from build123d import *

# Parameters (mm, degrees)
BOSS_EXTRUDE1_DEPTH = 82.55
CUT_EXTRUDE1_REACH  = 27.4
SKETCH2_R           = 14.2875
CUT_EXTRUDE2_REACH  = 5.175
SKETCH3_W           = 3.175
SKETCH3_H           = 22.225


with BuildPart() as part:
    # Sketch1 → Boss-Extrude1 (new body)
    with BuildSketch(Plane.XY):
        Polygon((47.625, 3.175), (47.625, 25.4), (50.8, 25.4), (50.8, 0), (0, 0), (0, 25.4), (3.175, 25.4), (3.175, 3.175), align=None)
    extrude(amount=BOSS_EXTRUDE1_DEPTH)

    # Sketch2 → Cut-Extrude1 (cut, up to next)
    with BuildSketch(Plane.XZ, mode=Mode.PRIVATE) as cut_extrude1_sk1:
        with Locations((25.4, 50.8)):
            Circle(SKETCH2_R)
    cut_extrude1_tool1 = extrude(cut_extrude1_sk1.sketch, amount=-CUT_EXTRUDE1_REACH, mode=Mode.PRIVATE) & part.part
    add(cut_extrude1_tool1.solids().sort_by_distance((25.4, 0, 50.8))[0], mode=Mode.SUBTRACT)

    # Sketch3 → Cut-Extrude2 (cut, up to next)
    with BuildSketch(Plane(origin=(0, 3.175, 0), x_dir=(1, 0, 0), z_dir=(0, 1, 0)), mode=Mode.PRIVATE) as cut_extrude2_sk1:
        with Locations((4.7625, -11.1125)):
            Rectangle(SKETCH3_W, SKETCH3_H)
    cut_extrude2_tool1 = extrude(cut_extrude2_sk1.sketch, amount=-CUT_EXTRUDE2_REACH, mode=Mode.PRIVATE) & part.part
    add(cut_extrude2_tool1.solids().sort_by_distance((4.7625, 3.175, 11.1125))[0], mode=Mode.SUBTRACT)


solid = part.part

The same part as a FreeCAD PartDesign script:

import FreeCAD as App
import Part
import Sketcher

V = App.Vector
Q = App.Units.Quantity


def add_polygon(sketch, points):
    """Adds a closed chain of lines whose ends are joined by coincident constraints."""
    first, n = sketch.GeometryCount, len(points)
    for a, b in zip(points, points[1:] + points[:1]):
        sketch.addGeometry(Part.LineSegment(App.Vector(*a, 0), App.Vector(*b, 0)), False)
    for i in range(n):
        sketch.addConstraint(Sketcher.Constraint("Coincident", first + i, 2, first + (i + 1) % n, 1))

doc = App.newDocument("Part")
body = doc.addObject("PartDesign::Body", "Body")

# Sketch on XY plane
sketch1 = body.newObject("Sketcher::SketchObject", "Sketch")
sketch1.AttachmentSupport = (doc.getObject("XY_Plane"), [""])
sketch1.MapMode = "FlatFace"
add_polygon(sketch1, [(47.625, 25.4), (47.625, 3.175), (3.175, 3.175), (3.175, 25.4), (0, 25.4), (0, 0), (50.8, 0), (50.8, 25.4)])  # lines 0-7
sketch1.addConstraint([
    Sketcher.Constraint("Vertical", 0),
    Sketcher.Constraint("Horizontal", 1),
    Sketcher.Constraint("Vertical", 2),
    Sketcher.Constraint("Horizontal", 3),
    Sketcher.Constraint("Vertical", 4),
    Sketcher.Constraint("Horizontal", 5),
    Sketcher.Constraint("Vertical", 6),
    Sketcher.Constraint("Horizontal", 7),
    Sketcher.Constraint("Coincident", 4, 2, -1, 1),
    Sketcher.Constraint("Horizontal", 3, 2, 6, 2),
    Sketcher.Constraint("Equal", 3, 7),
    Sketcher.Constraint("DistanceX", 5, 1, 5, 2, Q("2 in")),
    Sketcher.Constraint("DistanceY", 4, 2, 4, 1, Q("1 in")),
    Sketcher.Constraint("DistanceX", 1, 2, 1, 1, Q("1.75 in")),
    Sketcher.Constraint("DistanceY", 0, 2, 0, 1, Q("0.875 in")),
])
pad1 = body.newObject("PartDesign::Pad", "Pad")
pad1.Profile = sketch1
pad1.Length = Q("3.25 in")

# Sketch on XZ plane
sketch2 = body.newObject("Sketcher::SketchObject", "Sketch001")
sketch2.AttachmentSupport = (doc.getObject("XZ_Plane"), [""])
sketch2.MapMode = "FlatFace"
sketch2.addGeometry(Part.Circle(V(25.4, 50.8, 0), V(0, 0, 1), 14.2875), False)
sketch2.addConstraint([
    Sketcher.Constraint("Diameter", 0, Q("1.125 in")),
    Sketcher.Constraint("DistanceX", -1, 1, 0, 3, Q("1 in")),
    Sketcher.Constraint("DistanceY", -1, 1, 0, 3, Q("2 in")),
])
pocket1 = body.newObject("PartDesign::Pocket", "Pocket")
pocket1.Profile = sketch2
pocket1.Type = "UpToFirst"

# Sketch on XZ plane
sketch3 = body.newObject("Sketcher::SketchObject", "Sketch002")
sketch3.AttachmentSupport = (doc.getObject("XZ_Plane"), [""])
sketch3.MapMode = "FlatFace"
sketch3.AttachmentOffset = App.Placement(V(0, 0, -0.125 * 25.4), App.Rotation())
add_polygon(sketch3, [(3.175, 0), (3.175, 22.225), (6.35, 22.225), (6.35, 0)])  # lines 0-3
sketch3.addConstraint([
    Sketcher.Constraint("Vertical", 0),
    Sketcher.Constraint("Horizontal", 1),
    Sketcher.Constraint("Vertical", 2),
    Sketcher.Constraint("Horizontal", 3),
    Sketcher.Constraint("PointOnObject", 2, 2, -1),
    Sketcher.Constraint("DistanceX", 1, 1, 1, 2, Q("0.125 in")),
    Sketcher.Constraint("DistanceY", 0, 1, 0, 2, Q("0.875 in")),
    Sketcher.Constraint("DistanceX", -1, 1, 1, 2, Q("0.25 in")),
])
pocket2 = body.newObject("PartDesign::Pocket", "Pocket001")
pocket2.Profile = sketch3
pocket2.Type = "UpToFirst"
pocket2.Reversed = True

doc.recompute()
